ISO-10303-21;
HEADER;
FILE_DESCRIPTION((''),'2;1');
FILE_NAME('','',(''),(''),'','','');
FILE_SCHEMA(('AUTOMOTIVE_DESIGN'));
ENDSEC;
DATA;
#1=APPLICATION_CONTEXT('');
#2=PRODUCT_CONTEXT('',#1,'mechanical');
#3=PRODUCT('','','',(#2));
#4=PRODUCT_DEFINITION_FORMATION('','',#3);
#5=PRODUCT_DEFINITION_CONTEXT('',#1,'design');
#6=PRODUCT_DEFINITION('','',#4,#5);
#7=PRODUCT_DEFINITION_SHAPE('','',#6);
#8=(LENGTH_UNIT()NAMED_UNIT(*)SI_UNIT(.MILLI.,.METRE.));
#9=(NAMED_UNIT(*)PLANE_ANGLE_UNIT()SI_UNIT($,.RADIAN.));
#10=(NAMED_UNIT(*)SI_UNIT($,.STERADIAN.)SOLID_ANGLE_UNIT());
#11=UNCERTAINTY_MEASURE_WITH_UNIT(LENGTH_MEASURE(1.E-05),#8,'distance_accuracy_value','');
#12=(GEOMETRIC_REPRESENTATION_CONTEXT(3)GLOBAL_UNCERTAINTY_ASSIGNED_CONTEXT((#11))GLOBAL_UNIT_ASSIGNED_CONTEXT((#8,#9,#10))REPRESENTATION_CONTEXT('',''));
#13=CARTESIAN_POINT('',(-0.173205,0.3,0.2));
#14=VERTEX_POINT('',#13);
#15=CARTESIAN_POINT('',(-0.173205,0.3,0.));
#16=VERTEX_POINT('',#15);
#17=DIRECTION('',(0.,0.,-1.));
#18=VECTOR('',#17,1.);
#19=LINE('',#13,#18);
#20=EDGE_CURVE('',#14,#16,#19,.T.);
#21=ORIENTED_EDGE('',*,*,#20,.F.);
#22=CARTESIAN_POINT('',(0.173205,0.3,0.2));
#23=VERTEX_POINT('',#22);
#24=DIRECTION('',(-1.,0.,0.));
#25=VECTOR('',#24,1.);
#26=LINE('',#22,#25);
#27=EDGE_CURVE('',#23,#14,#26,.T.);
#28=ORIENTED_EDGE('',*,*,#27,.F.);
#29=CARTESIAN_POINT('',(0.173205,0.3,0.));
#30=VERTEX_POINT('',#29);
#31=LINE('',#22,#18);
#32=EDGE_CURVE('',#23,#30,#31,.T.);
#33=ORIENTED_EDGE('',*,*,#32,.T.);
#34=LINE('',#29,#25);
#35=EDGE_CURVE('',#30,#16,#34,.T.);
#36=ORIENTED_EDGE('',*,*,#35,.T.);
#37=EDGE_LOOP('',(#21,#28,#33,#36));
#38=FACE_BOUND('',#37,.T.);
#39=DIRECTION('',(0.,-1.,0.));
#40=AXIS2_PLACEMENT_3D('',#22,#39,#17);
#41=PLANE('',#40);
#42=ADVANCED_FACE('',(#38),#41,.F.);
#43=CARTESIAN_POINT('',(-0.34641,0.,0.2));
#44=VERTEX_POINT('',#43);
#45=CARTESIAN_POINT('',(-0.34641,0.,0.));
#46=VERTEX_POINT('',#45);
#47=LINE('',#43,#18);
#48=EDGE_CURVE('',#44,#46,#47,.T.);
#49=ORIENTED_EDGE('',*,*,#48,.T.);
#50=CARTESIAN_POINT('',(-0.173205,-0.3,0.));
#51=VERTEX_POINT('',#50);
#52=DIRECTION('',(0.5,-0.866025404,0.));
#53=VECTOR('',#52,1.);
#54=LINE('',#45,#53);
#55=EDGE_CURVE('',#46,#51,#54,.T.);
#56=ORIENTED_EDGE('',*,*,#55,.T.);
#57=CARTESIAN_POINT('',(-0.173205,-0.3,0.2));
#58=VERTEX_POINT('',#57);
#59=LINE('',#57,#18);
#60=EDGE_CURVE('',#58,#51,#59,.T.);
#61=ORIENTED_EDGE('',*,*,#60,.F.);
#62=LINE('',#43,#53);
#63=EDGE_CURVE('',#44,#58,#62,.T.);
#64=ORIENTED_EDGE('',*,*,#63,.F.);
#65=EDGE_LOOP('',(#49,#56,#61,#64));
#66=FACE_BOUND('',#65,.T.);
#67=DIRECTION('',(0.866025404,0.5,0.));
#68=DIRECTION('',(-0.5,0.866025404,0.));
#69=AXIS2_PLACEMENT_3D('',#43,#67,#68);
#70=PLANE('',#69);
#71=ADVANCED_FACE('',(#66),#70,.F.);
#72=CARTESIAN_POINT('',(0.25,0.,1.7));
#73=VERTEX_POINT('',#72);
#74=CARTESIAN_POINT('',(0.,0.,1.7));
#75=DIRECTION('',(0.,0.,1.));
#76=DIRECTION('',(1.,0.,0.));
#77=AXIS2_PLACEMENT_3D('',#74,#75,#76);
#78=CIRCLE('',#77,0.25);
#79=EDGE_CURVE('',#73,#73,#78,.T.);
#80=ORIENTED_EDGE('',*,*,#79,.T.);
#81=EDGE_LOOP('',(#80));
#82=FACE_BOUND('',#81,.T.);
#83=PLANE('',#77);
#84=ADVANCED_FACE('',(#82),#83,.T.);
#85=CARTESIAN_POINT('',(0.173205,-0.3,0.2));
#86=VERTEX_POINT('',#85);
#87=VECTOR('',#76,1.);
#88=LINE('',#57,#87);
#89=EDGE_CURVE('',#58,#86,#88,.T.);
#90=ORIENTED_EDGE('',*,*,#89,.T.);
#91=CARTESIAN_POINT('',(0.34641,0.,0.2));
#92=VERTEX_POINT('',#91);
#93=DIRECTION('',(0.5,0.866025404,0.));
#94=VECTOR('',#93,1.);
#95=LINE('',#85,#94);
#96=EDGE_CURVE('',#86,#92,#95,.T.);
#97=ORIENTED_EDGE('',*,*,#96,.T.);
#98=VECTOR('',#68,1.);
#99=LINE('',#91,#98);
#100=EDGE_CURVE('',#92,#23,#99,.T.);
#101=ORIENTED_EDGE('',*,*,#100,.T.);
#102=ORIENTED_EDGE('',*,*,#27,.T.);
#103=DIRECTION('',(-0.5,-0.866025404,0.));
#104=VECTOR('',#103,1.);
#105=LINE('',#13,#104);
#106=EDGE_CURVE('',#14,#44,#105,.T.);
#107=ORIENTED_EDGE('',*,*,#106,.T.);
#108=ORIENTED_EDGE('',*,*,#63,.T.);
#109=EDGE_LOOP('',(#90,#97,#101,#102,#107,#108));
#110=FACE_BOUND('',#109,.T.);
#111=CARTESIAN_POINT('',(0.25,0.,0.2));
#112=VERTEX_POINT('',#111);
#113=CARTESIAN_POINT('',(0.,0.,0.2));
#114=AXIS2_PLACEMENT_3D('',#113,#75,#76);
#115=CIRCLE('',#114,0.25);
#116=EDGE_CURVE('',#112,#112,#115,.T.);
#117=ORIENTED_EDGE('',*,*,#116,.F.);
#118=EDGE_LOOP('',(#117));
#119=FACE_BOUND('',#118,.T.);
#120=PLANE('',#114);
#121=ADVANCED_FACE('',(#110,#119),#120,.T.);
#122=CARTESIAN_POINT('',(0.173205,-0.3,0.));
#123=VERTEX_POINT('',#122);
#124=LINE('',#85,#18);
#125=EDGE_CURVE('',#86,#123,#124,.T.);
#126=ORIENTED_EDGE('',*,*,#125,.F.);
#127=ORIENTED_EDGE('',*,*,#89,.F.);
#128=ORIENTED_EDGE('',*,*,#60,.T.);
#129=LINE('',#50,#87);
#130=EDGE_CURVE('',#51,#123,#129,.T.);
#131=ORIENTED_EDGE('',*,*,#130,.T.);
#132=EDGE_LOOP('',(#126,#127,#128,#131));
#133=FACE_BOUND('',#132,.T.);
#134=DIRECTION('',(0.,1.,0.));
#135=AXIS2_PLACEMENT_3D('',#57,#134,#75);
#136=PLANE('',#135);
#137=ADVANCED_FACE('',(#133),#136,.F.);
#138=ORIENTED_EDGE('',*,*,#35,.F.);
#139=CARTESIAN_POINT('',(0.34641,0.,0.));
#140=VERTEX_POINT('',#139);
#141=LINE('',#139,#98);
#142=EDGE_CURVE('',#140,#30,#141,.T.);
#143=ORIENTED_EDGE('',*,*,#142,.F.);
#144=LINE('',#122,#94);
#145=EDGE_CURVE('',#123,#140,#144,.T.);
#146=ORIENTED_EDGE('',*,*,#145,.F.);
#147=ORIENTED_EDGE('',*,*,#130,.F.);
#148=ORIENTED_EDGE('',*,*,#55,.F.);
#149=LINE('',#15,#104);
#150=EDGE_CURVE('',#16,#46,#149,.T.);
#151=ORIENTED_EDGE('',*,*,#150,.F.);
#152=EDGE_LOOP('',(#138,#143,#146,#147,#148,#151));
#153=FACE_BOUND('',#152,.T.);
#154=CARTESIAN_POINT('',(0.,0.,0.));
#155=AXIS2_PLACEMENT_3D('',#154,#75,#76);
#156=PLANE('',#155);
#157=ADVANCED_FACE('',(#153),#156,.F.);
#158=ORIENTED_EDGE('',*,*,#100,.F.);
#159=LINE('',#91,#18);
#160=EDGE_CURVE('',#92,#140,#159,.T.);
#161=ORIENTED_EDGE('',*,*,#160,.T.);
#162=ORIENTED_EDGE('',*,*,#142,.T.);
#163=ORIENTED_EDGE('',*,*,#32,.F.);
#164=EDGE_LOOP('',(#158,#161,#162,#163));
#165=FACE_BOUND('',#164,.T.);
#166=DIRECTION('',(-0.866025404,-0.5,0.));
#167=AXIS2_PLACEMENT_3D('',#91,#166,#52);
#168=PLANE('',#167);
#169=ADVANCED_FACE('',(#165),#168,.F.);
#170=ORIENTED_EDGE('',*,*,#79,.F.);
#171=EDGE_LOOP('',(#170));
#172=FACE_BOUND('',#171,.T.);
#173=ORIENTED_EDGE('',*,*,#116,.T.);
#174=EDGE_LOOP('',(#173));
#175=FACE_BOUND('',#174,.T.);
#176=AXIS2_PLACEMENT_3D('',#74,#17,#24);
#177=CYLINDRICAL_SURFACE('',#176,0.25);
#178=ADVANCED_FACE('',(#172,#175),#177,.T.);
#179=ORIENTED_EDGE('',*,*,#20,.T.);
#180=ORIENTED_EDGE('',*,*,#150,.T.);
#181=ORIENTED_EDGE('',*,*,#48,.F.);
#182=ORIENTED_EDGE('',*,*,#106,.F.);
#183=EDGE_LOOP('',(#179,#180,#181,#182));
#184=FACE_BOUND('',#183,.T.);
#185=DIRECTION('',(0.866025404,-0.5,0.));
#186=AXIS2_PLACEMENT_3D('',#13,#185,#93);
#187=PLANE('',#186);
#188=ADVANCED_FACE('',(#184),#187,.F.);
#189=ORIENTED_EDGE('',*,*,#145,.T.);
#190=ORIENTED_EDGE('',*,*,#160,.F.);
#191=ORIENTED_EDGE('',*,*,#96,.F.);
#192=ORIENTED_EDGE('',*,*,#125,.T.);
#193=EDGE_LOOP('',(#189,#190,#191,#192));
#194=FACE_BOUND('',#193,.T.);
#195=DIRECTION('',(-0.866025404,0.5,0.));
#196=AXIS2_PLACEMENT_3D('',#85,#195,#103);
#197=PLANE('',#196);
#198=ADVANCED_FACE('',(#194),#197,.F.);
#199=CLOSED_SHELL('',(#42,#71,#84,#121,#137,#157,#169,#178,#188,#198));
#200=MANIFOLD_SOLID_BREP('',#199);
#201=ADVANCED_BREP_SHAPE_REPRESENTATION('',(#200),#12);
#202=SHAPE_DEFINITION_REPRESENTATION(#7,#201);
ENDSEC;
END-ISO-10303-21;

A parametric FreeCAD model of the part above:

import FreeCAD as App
import Part
import Sketcher
Q = App.Units.Quantity


def add_polygon(sketch, points):
    """Adds a closed chain of lines whose ends are joined by coincident constraints."""
    first, n = sketch.GeometryCount, len(points)
    for a, b in zip(points, points[1:] + points[:1]):
        sketch.addGeometry(Part.LineSegment(App.Vector(*a, 0), App.Vector(*b, 0)), False)
    for i in range(n):
        sketch.addConstraint(Sketcher.Constraint("Coincident", first + i, 2, first + (i + 1) % n, 1))

doc = App.newDocument("Part")
body = doc.addObject("PartDesign::Body", "Body")

# Sketch on XY plane
sketch1 = doc.addObject("Sketcher::SketchObject", "Sketch")
body.addObject(sketch1)
sketch1.AttachmentSupport = (doc.XY_Plane, [""])
sketch1.MapMode = "FlatFace"
add_polygon(sketch1, [(0.17, 0.3), (-0.17, 0.3), (-0.35, 0), (-0.17, -0.3), (0.17, -0.3), (0.35, 0)])  # lines 0-5
sketch1.addConstraint([
    Sketcher.Constraint("Horizontal", 0),
    Sketcher.Constraint("Horizontal", 3),
    Sketcher.Constraint("Symmetric", 0, 2, 3, 2, -1, 1),
    Sketcher.Constraint("Symmetric", 1, 2, 4, 2, -1, 1),
    Sketcher.Constraint("PointOnObject", 1, 2, -1),
    Sketcher.Constraint("Parallel", 2, 5),
    Sketcher.Constraint("Vertical", 0, 2, 2, 2),
    Sketcher.Constraint("Angle", 1, Q("-120 deg")),
    Sketcher.Constraint("DistanceY", -1, 1, 0, 2, 0.3),
    Sketcher.Constraint("DistanceX", 0, 2, 0, 1, 0.34641),
])
pad1 = doc.addObject("PartDesign::Pad", "Pad")
body.addObject(pad1)
pad1.Profile = sketch1
pad1.Length = 0.2

# Sketch on XY plane
sketch2 = doc.addObject("Sketcher::SketchObject", "Sketch001")
body.addObject(sketch2)
sketch2.AttachmentSupport = (doc.XY_Plane, [""])
sketch2.MapMode = "FlatFace"
sketch2.AttachmentOffset = App.Placement(App.Vector(0, 0, 0.2), App.Rotation())
sketch2.addGeometry(Part.Circle(App.Vector(0, 0, 0), App.Vector(0, 0, 1), 0.25), False)
sketch2.addConstraint([
    Sketcher.Constraint("Coincident", 0, 3, -1, 1),
    Sketcher.Constraint("Diameter", 0, 0.5),
])
pad2 = doc.addObject("PartDesign::Pad", "Pad001")
body.addObject(pad2)
pad2.Profile = sketch2
pad2.Length = 1.5

doc.recompute()
